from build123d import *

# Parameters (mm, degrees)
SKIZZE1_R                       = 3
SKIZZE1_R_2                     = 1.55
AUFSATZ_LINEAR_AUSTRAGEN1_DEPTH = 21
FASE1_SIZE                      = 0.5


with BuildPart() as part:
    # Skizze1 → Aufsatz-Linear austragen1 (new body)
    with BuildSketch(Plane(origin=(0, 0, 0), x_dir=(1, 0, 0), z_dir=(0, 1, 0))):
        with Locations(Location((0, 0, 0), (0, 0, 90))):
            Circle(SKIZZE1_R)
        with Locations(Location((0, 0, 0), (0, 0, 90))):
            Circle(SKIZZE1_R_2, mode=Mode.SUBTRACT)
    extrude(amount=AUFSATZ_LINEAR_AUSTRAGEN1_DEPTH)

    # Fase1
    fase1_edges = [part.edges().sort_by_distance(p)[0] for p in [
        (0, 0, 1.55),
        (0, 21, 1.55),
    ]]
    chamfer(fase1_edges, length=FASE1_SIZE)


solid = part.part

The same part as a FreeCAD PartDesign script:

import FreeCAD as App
import Part
import Sketcher


def edges_at(feature, points):
    """Names of the edges that pass closest to the given points."""
    edges = feature.Shape.Edges
    near = lambda p: min(range(len(edges)), key=lambda i: edges[i].distToShape(Part.Vertex(*p))[0])
    return sorted({f"Edge{near(p) + 1}" for p in points})

doc = App.newDocument("Part")
body = doc.addObject("PartDesign::Body", "Body")

# Sketch on XZ plane
sketch1 = body.newObject("Sketcher::SketchObject", "Sketch")
sketch1.AttachmentSupport = (doc.getObject("XZ_Plane"), [""])
sketch1.MapMode = "FlatFace"
sketch1.addGeometry([
    Part.Circle(App.Vector(0, 0, 0), App.Vector(0, 0, 1), 3),
    Part.Circle(App.Vector(0, 0, 0), App.Vector(0, 0, 1), 1.55),
], False)
sketch1.addConstraint([
    Sketcher.Constraint("Coincident", 0, 3, -1, 1),
    Sketcher.Constraint("Coincident", 1, 3, -1, 1),
    Sketcher.Constraint("Diameter", 0, 6.0),
    Sketcher.Constraint("Diameter", 1, 3.1),
])
pad1 = body.newObject("PartDesign::Pad", "Pad")
pad1.Profile = sketch1
pad1.Length = 21
pad1.Reversed = True
doc.recompute()

chamfer = body.newObject("PartDesign::Chamfer", "Chamfer")
chamfer.Base = (pad1, edges_at(pad1, [(0, 0, 1.55), (0, 21, 1.55)]))
chamfer.Size = 0.5

doc.recompute()
